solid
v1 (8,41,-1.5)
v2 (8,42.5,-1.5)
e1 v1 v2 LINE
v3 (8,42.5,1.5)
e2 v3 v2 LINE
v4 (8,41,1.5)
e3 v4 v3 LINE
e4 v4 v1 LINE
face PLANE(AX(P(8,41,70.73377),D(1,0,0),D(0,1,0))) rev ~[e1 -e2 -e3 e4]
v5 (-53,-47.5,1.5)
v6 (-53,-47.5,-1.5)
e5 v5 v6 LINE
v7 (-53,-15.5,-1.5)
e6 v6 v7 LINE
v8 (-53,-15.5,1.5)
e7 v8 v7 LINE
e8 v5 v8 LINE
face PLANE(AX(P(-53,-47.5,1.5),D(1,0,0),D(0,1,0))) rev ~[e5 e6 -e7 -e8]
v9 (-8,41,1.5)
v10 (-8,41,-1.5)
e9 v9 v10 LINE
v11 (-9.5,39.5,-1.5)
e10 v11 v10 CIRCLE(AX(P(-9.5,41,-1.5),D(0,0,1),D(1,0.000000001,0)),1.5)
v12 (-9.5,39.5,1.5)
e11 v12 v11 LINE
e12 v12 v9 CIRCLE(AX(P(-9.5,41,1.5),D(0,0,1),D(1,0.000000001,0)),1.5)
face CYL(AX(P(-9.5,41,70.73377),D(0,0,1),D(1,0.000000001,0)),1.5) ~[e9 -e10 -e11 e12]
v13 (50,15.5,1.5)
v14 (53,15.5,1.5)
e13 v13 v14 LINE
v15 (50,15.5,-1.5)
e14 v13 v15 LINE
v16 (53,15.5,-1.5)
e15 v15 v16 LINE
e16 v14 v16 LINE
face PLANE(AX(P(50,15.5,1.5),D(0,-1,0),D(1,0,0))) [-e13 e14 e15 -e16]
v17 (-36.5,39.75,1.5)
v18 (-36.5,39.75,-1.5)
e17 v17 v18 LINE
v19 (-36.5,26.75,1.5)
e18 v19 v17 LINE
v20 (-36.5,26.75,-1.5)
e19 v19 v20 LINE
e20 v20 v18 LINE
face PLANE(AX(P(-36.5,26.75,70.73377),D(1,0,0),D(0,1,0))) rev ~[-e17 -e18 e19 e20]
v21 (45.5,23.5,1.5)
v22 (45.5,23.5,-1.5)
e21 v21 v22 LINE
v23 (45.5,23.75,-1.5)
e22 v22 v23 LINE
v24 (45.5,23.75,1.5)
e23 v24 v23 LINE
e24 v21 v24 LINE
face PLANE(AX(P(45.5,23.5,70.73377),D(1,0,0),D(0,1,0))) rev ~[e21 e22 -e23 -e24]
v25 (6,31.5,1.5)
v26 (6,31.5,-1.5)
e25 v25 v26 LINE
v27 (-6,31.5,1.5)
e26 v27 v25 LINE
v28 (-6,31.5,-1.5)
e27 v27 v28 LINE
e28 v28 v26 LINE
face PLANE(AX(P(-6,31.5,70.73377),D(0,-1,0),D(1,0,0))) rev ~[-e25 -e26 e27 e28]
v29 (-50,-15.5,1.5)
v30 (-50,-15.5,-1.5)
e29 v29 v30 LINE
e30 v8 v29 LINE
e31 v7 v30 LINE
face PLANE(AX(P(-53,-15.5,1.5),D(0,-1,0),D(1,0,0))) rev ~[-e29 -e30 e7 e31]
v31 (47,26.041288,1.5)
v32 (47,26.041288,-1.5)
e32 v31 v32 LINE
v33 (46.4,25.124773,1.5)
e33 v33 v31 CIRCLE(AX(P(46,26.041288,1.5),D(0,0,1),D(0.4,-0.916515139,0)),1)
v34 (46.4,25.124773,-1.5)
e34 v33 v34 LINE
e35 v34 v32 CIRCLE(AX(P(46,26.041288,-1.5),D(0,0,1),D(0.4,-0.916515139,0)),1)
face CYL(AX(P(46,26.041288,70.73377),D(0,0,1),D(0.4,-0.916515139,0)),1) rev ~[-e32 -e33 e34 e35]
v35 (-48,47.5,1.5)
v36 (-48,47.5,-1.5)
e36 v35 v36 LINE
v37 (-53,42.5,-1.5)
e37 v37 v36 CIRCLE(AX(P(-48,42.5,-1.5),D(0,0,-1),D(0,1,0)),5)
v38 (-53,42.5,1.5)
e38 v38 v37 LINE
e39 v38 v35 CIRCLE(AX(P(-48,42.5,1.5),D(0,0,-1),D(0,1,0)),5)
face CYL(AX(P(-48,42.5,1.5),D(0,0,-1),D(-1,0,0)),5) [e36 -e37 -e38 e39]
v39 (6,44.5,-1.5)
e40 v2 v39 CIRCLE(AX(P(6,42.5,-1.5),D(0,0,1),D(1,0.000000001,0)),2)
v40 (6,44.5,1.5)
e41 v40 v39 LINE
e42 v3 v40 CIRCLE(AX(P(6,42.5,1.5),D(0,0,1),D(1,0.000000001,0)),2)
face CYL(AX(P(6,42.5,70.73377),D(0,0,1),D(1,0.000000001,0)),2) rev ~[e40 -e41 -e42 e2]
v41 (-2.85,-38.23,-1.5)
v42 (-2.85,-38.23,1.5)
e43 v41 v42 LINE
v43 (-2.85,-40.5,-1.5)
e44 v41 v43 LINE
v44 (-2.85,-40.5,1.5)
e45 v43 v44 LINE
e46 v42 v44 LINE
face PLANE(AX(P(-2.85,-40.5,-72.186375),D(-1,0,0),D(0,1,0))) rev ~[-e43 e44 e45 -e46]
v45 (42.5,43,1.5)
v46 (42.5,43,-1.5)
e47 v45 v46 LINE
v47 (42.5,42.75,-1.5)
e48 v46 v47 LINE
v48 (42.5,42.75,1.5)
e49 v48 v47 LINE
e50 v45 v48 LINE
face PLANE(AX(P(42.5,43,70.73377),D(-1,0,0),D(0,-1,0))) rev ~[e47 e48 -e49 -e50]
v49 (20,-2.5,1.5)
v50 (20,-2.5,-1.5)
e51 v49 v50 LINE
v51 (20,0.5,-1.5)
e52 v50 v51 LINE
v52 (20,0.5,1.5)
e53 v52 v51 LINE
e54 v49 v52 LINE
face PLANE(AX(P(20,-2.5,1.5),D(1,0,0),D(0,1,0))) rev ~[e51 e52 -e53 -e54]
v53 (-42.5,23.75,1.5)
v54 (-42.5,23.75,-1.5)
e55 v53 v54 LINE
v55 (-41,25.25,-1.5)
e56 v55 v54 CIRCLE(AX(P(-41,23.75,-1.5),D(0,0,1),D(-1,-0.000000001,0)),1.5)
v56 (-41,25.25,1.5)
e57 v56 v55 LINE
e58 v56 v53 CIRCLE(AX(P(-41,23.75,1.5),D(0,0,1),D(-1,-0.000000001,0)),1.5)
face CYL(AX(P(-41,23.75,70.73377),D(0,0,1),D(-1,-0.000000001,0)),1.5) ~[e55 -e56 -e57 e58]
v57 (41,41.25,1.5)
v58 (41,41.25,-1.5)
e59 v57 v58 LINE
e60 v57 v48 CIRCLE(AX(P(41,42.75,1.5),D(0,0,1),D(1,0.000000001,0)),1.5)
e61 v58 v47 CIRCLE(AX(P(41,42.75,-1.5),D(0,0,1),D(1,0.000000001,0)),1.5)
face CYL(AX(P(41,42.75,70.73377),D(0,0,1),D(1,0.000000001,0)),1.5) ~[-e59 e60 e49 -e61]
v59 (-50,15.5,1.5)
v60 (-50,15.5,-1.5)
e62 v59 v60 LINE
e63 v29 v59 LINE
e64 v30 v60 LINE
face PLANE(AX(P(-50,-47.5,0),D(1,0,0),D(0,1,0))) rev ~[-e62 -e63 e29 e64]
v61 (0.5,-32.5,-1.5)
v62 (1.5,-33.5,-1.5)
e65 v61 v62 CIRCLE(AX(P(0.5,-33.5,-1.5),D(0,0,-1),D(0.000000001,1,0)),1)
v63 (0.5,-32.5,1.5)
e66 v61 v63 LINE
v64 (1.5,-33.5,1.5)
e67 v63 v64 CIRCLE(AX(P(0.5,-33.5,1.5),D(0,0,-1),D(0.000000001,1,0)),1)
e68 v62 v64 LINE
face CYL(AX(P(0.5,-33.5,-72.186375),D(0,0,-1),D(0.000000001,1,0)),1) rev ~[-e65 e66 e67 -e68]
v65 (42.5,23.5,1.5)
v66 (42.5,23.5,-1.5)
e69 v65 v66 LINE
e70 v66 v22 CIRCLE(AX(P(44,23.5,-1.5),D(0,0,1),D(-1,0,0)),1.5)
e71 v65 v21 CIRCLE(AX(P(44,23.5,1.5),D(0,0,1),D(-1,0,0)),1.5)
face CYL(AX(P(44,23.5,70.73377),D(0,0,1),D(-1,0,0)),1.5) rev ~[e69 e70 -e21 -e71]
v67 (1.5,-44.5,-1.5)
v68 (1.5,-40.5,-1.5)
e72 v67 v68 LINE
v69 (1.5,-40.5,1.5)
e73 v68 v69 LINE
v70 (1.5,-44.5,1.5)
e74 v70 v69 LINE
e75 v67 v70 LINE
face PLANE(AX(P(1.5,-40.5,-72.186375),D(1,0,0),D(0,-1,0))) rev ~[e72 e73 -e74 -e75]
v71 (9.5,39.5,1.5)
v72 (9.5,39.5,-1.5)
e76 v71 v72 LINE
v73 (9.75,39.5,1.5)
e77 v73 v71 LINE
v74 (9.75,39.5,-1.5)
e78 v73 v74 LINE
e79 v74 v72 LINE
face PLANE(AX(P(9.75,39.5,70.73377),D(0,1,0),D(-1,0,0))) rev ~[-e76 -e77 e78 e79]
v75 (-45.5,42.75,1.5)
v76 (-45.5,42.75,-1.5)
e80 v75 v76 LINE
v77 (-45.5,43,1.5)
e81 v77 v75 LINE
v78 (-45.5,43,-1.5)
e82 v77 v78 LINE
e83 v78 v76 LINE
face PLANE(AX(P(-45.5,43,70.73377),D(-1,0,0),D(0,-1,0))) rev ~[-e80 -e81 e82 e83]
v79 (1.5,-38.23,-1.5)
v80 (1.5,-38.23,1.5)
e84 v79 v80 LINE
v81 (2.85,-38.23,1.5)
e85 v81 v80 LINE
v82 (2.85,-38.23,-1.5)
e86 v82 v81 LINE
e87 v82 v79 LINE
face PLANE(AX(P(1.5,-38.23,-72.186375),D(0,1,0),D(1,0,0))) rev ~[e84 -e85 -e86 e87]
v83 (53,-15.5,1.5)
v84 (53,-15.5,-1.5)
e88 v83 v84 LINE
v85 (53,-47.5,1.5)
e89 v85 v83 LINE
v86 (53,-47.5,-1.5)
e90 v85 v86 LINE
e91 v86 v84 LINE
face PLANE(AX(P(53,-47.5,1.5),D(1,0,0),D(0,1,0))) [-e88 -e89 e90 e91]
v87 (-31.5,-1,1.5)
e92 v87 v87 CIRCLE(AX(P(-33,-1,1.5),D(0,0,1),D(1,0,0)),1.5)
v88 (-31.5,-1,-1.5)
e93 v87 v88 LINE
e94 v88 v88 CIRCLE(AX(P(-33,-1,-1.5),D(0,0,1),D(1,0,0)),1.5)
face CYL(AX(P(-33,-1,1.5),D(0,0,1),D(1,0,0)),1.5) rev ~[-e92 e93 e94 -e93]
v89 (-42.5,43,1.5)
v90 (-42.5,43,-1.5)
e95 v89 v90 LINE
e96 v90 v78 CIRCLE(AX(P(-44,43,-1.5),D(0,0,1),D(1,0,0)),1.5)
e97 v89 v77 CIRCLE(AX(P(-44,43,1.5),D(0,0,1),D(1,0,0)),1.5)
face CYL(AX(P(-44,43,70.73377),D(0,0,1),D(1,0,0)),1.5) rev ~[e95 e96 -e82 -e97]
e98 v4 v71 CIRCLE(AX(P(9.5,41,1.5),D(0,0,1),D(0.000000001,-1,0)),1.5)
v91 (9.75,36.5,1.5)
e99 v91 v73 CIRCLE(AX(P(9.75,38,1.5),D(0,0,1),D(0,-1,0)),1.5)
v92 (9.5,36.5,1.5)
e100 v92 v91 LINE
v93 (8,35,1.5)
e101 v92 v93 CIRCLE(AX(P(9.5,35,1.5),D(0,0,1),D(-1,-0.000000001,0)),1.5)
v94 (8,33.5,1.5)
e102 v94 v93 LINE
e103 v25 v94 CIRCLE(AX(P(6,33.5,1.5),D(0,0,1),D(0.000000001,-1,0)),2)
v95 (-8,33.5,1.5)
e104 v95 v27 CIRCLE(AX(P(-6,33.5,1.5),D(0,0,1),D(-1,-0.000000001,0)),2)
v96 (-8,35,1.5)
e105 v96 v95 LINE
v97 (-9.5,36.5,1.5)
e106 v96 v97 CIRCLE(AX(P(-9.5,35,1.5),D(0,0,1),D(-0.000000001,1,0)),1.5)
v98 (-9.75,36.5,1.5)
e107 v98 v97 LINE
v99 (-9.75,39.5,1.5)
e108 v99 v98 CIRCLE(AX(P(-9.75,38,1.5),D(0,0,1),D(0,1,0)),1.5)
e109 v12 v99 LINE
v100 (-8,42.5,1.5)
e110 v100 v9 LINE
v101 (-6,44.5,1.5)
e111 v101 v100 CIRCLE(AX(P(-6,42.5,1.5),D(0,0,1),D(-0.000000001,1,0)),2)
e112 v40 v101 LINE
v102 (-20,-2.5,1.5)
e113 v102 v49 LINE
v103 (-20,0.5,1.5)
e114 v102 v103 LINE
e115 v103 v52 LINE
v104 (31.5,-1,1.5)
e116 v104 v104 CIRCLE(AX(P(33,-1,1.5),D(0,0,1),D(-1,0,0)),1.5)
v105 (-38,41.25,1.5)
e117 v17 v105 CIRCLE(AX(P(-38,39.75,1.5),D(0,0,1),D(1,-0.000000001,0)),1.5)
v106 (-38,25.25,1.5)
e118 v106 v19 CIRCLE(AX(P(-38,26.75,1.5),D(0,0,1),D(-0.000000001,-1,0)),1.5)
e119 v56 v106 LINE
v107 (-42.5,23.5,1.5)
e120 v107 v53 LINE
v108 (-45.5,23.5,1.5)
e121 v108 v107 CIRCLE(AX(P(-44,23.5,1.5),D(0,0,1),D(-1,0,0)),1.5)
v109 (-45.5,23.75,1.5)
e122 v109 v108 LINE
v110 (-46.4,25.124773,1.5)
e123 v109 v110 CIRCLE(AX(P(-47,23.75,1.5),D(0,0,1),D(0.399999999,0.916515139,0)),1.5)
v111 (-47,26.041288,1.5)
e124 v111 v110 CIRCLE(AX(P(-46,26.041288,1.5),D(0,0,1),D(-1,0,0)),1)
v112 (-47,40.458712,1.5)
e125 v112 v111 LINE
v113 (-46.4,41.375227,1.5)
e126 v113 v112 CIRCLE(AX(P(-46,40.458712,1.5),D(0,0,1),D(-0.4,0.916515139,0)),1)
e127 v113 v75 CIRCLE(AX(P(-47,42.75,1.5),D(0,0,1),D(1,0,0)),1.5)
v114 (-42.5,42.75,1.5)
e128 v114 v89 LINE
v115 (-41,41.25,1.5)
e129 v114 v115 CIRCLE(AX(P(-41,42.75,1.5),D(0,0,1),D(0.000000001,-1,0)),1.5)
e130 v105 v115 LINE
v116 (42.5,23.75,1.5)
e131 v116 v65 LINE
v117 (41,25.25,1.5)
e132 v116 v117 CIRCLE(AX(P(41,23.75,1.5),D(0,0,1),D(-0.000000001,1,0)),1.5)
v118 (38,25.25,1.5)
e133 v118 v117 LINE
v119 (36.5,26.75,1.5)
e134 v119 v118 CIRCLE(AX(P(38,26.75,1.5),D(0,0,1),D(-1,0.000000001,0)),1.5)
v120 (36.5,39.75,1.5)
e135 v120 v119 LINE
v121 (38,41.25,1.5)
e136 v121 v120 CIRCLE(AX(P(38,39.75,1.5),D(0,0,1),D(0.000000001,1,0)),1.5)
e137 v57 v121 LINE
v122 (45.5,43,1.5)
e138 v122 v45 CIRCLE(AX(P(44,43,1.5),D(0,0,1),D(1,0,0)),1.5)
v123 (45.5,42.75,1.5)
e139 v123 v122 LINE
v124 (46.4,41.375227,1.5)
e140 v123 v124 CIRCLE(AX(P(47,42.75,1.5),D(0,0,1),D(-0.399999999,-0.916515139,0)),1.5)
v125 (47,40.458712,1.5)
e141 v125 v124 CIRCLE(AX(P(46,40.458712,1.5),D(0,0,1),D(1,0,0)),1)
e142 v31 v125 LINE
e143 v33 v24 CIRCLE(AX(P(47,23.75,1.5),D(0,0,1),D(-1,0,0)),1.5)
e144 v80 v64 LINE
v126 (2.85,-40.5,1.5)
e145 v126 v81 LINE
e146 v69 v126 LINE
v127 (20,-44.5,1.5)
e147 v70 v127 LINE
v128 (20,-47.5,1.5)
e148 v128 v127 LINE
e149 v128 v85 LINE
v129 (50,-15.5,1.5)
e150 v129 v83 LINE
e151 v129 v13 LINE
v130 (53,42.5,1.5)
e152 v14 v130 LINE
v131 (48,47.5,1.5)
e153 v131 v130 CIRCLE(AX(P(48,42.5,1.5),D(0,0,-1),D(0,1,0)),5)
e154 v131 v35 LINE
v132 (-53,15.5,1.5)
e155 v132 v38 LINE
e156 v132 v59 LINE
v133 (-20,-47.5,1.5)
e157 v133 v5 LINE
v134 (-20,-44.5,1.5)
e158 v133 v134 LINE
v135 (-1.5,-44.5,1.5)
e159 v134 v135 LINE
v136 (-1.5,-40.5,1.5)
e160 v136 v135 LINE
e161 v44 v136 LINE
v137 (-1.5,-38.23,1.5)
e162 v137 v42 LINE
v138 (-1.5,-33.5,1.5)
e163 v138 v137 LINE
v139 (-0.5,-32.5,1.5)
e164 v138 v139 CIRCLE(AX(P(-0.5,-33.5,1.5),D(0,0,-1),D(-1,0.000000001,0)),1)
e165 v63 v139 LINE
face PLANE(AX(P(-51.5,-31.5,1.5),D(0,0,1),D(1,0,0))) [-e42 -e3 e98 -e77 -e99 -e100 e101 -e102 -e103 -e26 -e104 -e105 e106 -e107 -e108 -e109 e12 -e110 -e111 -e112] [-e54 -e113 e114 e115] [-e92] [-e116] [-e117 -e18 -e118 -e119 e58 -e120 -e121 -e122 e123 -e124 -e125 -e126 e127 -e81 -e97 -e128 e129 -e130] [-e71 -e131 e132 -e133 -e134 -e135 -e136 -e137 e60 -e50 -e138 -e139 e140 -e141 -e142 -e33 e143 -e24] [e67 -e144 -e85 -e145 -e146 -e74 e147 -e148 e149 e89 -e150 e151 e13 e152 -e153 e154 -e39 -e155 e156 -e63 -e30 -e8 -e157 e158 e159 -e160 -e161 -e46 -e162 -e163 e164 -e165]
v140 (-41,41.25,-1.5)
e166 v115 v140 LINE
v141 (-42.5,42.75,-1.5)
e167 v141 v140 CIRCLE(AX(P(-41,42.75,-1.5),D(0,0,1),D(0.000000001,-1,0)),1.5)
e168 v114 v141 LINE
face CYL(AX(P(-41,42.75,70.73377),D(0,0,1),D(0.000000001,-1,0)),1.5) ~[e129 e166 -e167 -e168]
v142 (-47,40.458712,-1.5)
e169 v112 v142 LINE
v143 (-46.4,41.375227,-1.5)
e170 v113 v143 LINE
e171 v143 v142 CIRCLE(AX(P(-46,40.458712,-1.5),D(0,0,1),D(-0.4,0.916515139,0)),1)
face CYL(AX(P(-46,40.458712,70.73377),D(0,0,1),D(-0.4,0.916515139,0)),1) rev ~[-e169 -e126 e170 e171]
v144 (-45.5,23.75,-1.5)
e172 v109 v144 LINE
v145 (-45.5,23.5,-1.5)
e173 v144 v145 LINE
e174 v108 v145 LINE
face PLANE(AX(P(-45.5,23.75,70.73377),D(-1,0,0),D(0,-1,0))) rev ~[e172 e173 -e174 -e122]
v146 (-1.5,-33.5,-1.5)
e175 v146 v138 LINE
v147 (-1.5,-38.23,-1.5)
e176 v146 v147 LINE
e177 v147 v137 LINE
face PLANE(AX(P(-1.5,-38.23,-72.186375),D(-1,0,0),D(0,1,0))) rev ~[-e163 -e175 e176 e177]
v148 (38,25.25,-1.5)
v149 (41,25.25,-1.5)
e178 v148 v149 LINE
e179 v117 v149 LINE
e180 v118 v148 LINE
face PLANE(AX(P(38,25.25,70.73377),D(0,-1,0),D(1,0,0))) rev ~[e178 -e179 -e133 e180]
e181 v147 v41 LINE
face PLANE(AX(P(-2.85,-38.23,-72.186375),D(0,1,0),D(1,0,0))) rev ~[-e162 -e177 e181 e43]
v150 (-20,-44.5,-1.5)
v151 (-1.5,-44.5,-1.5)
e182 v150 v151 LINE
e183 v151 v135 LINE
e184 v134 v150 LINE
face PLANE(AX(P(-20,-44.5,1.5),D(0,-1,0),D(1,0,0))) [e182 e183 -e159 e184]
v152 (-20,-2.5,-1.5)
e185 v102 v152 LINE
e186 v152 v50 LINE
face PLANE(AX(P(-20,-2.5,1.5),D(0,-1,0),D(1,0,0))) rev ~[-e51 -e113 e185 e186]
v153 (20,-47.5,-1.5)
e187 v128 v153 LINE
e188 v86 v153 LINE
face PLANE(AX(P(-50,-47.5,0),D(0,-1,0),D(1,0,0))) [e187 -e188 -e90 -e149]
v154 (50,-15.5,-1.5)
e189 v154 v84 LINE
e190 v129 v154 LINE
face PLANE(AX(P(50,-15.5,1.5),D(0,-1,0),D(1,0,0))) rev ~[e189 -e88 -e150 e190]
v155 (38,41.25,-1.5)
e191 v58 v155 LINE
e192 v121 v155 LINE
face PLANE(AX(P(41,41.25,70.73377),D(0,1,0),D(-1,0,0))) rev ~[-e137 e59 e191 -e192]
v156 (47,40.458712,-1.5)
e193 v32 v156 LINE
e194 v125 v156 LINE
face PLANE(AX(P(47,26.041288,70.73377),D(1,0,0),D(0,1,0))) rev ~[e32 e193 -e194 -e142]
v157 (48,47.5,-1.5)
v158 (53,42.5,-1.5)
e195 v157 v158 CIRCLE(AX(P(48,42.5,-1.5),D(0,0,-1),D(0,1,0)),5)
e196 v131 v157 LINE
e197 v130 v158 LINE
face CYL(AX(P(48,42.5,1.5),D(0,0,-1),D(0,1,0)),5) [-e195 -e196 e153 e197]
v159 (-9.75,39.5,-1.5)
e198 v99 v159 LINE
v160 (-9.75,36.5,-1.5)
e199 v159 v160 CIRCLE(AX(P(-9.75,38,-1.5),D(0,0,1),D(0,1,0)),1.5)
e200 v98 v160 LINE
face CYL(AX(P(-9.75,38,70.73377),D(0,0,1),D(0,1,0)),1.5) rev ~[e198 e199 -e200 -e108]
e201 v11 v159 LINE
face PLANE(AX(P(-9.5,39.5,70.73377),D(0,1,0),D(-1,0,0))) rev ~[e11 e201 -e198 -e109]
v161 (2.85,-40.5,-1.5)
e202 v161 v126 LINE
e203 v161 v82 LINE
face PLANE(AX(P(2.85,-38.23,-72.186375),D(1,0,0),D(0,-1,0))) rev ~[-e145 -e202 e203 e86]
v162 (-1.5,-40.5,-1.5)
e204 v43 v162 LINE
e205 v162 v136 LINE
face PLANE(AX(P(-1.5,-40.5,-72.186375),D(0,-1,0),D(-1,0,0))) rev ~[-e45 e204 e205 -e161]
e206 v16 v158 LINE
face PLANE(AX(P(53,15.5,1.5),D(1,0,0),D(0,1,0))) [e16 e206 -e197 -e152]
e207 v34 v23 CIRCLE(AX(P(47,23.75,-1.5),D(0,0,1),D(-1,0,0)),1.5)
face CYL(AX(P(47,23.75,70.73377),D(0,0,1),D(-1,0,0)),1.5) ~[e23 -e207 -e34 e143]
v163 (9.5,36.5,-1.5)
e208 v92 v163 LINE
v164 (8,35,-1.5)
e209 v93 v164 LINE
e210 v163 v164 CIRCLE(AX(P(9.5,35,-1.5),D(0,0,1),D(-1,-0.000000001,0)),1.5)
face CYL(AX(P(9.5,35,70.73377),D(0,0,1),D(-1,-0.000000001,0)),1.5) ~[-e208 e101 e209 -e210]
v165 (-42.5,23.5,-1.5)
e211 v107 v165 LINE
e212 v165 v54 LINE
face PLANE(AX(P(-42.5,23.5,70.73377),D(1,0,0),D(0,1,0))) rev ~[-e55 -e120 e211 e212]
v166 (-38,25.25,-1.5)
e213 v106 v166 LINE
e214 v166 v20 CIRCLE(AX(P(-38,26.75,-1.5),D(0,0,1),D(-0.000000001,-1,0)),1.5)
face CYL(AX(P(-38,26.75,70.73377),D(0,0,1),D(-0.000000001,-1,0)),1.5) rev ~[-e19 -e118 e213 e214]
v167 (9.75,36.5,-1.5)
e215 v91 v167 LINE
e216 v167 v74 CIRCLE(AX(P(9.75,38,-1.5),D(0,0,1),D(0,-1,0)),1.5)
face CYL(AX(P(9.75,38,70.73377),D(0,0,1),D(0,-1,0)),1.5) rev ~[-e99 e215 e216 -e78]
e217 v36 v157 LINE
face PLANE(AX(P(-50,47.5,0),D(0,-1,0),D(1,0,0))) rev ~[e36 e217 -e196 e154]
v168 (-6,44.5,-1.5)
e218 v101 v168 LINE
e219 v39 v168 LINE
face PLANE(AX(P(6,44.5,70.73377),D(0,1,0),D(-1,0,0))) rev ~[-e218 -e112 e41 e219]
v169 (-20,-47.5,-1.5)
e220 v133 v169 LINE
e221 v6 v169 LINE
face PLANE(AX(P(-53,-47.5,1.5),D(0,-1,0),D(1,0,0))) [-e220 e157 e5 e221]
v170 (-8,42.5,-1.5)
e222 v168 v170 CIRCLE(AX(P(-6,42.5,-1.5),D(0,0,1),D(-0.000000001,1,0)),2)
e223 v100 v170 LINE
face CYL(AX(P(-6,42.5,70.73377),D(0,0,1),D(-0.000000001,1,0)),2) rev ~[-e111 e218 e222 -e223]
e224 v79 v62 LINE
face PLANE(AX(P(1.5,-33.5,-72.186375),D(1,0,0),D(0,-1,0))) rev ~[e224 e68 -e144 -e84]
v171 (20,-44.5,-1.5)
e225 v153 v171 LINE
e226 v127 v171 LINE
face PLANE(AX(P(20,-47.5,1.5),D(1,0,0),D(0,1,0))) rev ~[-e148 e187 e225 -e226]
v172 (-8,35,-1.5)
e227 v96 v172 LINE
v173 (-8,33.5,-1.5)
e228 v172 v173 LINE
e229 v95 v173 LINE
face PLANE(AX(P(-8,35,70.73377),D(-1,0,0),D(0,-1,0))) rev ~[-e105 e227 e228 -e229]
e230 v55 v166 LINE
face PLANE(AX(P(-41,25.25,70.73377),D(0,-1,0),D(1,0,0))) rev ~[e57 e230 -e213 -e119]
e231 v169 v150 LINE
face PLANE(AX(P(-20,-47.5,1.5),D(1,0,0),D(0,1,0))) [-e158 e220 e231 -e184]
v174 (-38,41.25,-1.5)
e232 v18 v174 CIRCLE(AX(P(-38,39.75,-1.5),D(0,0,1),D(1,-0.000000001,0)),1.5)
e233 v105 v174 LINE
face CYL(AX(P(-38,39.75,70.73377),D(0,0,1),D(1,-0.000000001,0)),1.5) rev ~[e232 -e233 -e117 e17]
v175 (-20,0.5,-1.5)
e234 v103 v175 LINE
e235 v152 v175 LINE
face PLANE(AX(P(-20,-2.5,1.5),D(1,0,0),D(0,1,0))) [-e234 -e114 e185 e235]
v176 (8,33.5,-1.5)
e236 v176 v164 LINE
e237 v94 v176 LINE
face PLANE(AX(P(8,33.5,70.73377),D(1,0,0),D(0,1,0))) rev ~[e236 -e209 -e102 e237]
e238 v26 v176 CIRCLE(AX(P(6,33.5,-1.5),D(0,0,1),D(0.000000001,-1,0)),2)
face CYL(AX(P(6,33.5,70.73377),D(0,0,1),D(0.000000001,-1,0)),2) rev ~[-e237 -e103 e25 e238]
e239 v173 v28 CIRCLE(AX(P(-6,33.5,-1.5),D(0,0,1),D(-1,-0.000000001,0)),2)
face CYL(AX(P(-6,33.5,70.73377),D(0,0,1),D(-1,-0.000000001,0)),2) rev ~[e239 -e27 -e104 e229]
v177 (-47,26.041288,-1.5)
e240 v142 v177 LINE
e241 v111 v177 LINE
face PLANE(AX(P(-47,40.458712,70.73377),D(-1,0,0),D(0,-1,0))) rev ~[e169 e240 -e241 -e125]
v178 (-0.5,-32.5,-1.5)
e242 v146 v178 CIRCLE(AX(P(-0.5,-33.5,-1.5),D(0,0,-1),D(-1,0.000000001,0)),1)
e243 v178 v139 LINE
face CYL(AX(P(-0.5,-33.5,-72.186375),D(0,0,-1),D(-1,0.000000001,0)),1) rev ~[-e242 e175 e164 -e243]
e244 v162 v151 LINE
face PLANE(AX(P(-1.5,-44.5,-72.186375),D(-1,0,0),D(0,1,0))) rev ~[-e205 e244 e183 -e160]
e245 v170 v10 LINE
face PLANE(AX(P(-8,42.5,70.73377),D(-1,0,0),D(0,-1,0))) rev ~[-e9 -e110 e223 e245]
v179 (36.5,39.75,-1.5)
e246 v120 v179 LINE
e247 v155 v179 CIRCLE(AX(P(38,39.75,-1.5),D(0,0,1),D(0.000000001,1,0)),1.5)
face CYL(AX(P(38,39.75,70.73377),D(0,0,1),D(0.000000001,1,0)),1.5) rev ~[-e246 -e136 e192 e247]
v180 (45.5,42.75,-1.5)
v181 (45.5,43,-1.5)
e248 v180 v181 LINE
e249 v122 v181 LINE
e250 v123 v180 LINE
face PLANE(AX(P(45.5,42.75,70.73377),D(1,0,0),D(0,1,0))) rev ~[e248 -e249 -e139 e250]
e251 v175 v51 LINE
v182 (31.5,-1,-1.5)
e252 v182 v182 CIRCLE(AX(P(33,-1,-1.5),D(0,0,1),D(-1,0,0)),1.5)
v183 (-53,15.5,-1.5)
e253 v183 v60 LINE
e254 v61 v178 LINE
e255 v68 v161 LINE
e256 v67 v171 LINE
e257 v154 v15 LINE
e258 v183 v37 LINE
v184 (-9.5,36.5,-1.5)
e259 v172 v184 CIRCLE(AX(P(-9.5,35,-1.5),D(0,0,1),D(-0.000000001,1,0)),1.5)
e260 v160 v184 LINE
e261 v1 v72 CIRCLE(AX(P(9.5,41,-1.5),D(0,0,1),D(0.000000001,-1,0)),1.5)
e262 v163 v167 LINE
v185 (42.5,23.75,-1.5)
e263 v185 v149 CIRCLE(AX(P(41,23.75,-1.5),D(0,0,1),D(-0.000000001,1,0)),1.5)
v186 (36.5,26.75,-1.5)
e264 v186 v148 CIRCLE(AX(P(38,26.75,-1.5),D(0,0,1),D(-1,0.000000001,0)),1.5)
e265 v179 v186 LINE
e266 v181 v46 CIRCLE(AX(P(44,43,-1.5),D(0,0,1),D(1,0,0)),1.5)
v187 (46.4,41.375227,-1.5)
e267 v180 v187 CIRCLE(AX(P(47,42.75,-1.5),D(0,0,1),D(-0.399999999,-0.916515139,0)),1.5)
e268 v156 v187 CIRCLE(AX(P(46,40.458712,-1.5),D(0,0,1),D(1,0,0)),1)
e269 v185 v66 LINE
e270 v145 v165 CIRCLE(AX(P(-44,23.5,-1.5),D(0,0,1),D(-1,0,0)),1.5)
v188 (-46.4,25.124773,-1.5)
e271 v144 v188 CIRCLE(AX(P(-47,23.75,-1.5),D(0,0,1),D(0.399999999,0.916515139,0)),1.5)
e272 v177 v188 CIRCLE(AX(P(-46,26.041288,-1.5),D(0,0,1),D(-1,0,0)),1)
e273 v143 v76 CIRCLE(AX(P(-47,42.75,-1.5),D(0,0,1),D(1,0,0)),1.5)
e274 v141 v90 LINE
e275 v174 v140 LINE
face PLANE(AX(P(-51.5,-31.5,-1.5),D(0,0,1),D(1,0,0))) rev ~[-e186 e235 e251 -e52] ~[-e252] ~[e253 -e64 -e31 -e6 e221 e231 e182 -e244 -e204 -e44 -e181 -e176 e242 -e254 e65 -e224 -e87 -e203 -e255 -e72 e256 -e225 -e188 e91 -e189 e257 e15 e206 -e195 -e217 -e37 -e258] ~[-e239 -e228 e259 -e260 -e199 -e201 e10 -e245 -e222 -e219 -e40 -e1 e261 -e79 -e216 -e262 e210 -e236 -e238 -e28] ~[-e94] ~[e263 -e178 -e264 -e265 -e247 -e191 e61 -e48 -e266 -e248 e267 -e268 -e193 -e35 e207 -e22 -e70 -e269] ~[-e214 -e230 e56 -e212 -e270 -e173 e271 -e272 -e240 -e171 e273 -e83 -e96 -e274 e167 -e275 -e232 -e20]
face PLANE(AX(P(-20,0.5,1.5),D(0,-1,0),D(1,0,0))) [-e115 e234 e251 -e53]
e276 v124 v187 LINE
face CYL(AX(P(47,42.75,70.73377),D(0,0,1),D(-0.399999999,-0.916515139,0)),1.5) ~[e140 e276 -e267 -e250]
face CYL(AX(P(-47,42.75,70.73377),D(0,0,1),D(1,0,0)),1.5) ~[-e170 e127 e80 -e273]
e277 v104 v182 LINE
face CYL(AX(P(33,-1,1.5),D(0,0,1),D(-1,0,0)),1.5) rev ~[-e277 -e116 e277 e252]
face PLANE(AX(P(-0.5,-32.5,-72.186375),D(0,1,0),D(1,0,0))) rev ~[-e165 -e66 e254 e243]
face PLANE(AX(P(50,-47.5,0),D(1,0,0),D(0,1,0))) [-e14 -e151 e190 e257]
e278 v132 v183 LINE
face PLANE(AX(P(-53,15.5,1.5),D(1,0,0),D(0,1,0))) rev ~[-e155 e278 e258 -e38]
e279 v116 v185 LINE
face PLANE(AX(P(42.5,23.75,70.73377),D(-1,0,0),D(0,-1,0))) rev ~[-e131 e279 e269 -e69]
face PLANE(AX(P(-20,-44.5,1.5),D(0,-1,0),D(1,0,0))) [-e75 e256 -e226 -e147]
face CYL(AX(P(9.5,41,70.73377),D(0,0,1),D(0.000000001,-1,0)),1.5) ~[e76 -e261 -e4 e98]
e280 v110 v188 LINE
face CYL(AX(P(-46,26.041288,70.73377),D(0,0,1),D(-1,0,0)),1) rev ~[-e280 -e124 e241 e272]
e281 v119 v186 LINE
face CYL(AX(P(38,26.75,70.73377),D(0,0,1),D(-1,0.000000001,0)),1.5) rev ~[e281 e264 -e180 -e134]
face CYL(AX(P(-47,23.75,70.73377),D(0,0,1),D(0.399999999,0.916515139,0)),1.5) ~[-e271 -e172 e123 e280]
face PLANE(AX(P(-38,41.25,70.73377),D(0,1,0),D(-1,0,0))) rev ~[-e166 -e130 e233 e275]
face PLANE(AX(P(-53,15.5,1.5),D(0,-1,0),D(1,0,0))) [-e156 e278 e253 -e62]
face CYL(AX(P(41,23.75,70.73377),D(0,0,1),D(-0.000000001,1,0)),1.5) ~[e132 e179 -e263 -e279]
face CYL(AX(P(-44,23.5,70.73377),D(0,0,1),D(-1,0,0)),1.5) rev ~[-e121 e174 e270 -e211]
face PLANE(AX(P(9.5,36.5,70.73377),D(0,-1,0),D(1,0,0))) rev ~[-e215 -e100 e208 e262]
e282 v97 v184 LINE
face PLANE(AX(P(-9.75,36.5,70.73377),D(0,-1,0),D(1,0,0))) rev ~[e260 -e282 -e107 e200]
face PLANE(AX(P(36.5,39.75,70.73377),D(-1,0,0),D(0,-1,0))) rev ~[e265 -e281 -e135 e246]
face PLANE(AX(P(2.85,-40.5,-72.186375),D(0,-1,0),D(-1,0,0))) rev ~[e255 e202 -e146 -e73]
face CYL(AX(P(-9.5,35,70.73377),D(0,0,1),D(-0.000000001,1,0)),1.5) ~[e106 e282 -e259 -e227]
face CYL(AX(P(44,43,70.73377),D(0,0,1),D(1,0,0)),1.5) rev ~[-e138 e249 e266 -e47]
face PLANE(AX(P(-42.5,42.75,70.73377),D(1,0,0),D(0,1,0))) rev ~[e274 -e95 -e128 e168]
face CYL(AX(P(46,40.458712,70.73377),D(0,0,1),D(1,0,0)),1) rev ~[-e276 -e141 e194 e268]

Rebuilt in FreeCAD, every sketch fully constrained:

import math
import FreeCAD as App
import Part
import Sketcher
Q = App.Units.Quantity


def edges_at(feature, points):
    """Names of the edges that pass closest to the given points."""
    edges = feature.Shape.Edges
    near = lambda p: min(range(len(edges)), key=lambda i: edges[i].distToShape(Part.Vertex(*p))[0])
    return sorted({f"Edge{near(p) + 1}" for p in points})


def add_polygon(sketch, points):
    """Adds a closed chain of lines whose ends are joined by coincident constraints."""
    first, n = sketch.GeometryCount, len(points)
    for a, b in zip(points, points[1:] + points[:1]):
        sketch.addGeometry(Part.LineSegment(App.Vector(*a, 0), App.Vector(*b, 0)), False)
    for i in range(n):
        sketch.addConstraint(Sketcher.Constraint("Coincident", first + i, 2, first + (i + 1) % n, 1))

doc = App.newDocument("Part")
body = doc.addObject("PartDesign::Body", "Body")

sketch1 = doc.addObject("Sketcher::SketchObject", "Sketch")
body.addObject(sketch1)
sketch1.AttachmentSupport = (doc.XY_Plane, [""])
sketch1.MapMode = "FlatFace"
add_polygon(sketch1, [(-50, 48), (-50, -48), (50, -48), (50, 48)])
sketch1.addConstraint([
    Sketcher.Constraint("Vertical", 0),
    Sketcher.Constraint("Horizontal", 1),
    Sketcher.Constraint("Vertical", 2),
    Sketcher.Constraint("Horizontal", 3),
    Sketcher.Constraint("Symmetric", 0, 2, 2, 2, -1, 1),
    Sketcher.Constraint("DistanceX", 1, 1, 1, 2, Q("100 mm")),
    Sketcher.Constraint("DistanceY", 0, 2, 0, 1, Q("95 mm")),
])
pad1 = doc.addObject("PartDesign::Pad", "Pad")
body.addObject(pad1)
pad1.Profile = sketch1
pad1.Length = 3
pad1.Midplane = True

sketch2 = doc.addObject("Sketcher::SketchObject", "Sketch001")
body.addObject(sketch2)
sketch2.AttachmentSupport = (doc.XY_Plane, [""])
sketch2.MapMode = "FlatFace"
sketch2.AttachmentOffset = App.Placement(App.Vector(0, 0, 1.5), App.Rotation())
sketch2.addGeometry(Part.Circle(App.Vector(-33, -1, 0), App.Vector(0, 0, 1), 1.5), False)
sketch2.addGeometry(Part.Circle(App.Vector(33, -1, 0), App.Vector(0, 0, 1), 1.5), False)
add_polygon(sketch2, [(-20, -44.5), (-20, -47.5), (20, -47.5), (20, -44.5)])
add_polygon(sketch2, [(-20, 0.5), (-20, -2.5), (20, -2.5), (20, 0.5)])
sketch2.addConstraint([
    Sketcher.Constraint("Vertical", 2),
    Sketcher.Constraint("Horizontal", 3),
    Sketcher.Constraint("Vertical", 4),
    Sketcher.Constraint("Horizontal", 5),
    Sketcher.Constraint("Vertical", 6),
    Sketcher.Constraint("Horizontal", 7),
    Sketcher.Constraint("Vertical", 8),
    Sketcher.Constraint("Horizontal", 9),
    Sketcher.Constraint("Equal", 0, 1),
    Sketcher.Constraint("Symmetric", 0, 3, 1, 3, -2),
    Sketcher.Constraint("Vertical", 5, 2, 6, 2),
    Sketcher.Constraint("Vertical", 4, 2, 7, 2),
    Sketcher.Constraint("Equal", 4, 6),
    Sketcher.Constraint("Diameter", 0, Q("3 mm")),
    Sketcher.Constraint("DistanceX", 3, 1, 3, 2, Q("40 mm")),
    Sketcher.Constraint("DistanceY", 2, 2, 2, 1, Q("3 mm")),
    Sketcher.Constraint("DistanceX", 0, 3, -1, 1, Q("33 mm")),
    Sketcher.Constraint("DistanceY", 0, 3, -1, 1, Q("1 mm")),
    Sketcher.Constraint("DistanceX", 2, 2, -1, 1, Q("20 mm")),
    Sketcher.Constraint("DistanceY", 5, 2, 6, 2, Q("42 mm")),
    Sketcher.Constraint("DistanceY", 2, 2, -1, 1, Q("47.5 mm")),
])
pocket1 = doc.addObject("PartDesign::Pocket", "Pocket")
body.addObject(pocket1)
pocket1.Profile = sketch2
pocket1.Type = "ThroughAll"

sketch3 = doc.addObject("Sketcher::SketchObject", "Sketch002")
body.addObject(sketch3)
sketch3.AttachmentSupport = (doc.XY_Plane, [""])
sketch3.MapMode = "FlatFace"
sketch3.AttachmentOffset = App.Placement(App.Vector(0, 0, 1.5), App.Rotation())
add_polygon(sketch3, [(-53, -15.5), (-53, -47.5), (-50, -47.5), (-50, -15.5)])
add_polygon(sketch3, [(50, -15.5), (50, -47.5), (53, -47.5), (53, -15.5)])
add_polygon(sketch3, [(-53, 47.5), (-53, 15.5), (-50, 15.5), (-50, 47.5)])
add_polygon(sketch3, [(50, 47.5), (50, 15.5), (53, 15.5), (53, 47.5)])
sketch3.addConstraint([
    Sketcher.Constraint("Vertical", 0),
    Sketcher.Constraint("Horizontal", 1),
    Sketcher.Constraint("Vertical", 2),
    Sketcher.Constraint("Horizontal", 3),
    Sketcher.Constraint("Vertical", 4),
    Sketcher.Constraint("Horizontal", 5),
    Sketcher.Constraint("Vertical", 6),
    Sketcher.Constraint("Horizontal", 7),
    Sketcher.Constraint("Vertical", 8),
    Sketcher.Constraint("Horizontal", 9),
    Sketcher.Constraint("Vertical", 10),
    Sketcher.Constraint("Horizontal", 11),
    Sketcher.Constraint("Vertical", 12),
    Sketcher.Constraint("Horizontal", 13),
    Sketcher.Constraint("Vertical", 14),
    Sketcher.Constraint("Horizontal", 15),
    Sketcher.Constraint("Symmetric", 6, 2, 8, 2, -1, 1),
    Sketcher.Constraint("Symmetric", 4, 2, 10, 2, -1, 1),
    Sketcher.Constraint("Symmetric", 2, 2, 12, 2, -1, 1),
    Sketcher.Constraint("Symmetric", 0, 2, 14, 2, -1, 1),
    Sketcher.Constraint("Symmetric", 1, 2, 4, 2, -2),
    Sketcher.Constraint("Symmetric", 3, 2, 6, 2, -2),
    Sketcher.Constraint("DistanceX", 1, 1, 1, 2, Q("3 mm")),
    Sketcher.Constraint("DistanceY", 0, 2, 0, 1, Q("32 mm")),
    Sketcher.Constraint("DistanceX", 0, 2, -1, 1, Q("53 mm")),
    Sketcher.Constraint("DistanceY", 3, 2, 8, 2, Q("31 mm")),
])
pad2 = doc.addObject("PartDesign::Pad", "Pad001")
body.addObject(pad2)
pad2.Profile = sketch3
pad2.Length = 3
pad2.Reversed = True

sketch4 = doc.addObject("Sketcher::SketchObject", "Sketch003")
body.addObject(sketch4)
sketch4.AttachmentSupport = (doc.XY_Plane, [""])
sketch4.MapMode = "FlatFace"
sketch4.AttachmentOffset = App.Placement(App.Vector(0, 0, -1.5), App.Rotation())
sketch4.addGeometry([
    Part.LineSegment(App.Vector(36.5, 26.75, 0), App.Vector(36.5, 39.75, 0)),
    Part.ArcOfCircle(Part.Circle(App.Vector(38, 39.75, 0), App.Vector(0, 0, 1), 1.5), math.radians(90), math.radians(180)),
    Part.LineSegment(App.Vector(38, 41.25, 0), App.Vector(41, 41.25, 0)),
    Part.ArcOfCircle(Part.Circle(App.Vector(41, 42.75, 0), App.Vector(0, 0, 1), 1.5), math.radians(-90), math.radians(0)),
    Part.LineSegment(App.Vector(42.5, 42.75, 0), App.Vector(42.5, 43, 0)),
    Part.ArcOfCircle(Part.Circle(App.Vector(44, 43, 0), App.Vector(0, 0, 1), 1.5), math.radians(0), math.radians(180)),
    Part.LineSegment(App.Vector(45.5, 43, 0), App.Vector(45.5, 42.75, 0)),
    Part.ArcOfCircle(Part.Circle(App.Vector(47, 42.75, 0), App.Vector(0, 0, 1), 1.5), math.radians(180), math.radians(246)),
    Part.ArcOfCircle(Part.Circle(App.Vector(46, 40.46, 0), App.Vector(0, 0, 1), 1), math.radians(0), math.radians(66)),
    Part.LineSegment(App.Vector(47, 40.46, 0), App.Vector(47, 26.04, 0)),
    Part.ArcOfCircle(Part.Circle(App.Vector(46, 26.04, 0), App.Vector(0, 0, 1), 1), math.radians(-66), math.radians(0)),
    Part.ArcOfCircle(Part.Circle(App.Vector(47, 23.75, 0), App.Vector(0, 0, 1), 1.5), math.radians(114), math.radians(180)),
    Part.LineSegment(App.Vector(45.5, 23.75, 0), App.Vector(45.5, 23.5, 0)),
    Part.ArcOfCircle(Part.Circle(App.Vector(44, 23.5, 0), App.Vector(0, 0, 1), 1.5), math.radians(180), math.radians(360)),
    Part.LineSegment(App.Vector(42.5, 23.5, 0), App.Vector(42.5, 23.75, 0)),
    Part.ArcOfCircle(Part.Circle(App.Vector(41, 23.75, 0), App.Vector(0, 0, 1), 1.5), math.radians(0), math.radians(90)),
    Part.LineSegment(App.Vector(41, 25.25, 0), App.Vector(38, 25.25, 0)),
    Part.ArcOfCircle(Part.Circle(App.Vector(38, 26.75, 0), App.Vector(0, 0, 1), 1.5), math.radians(180), math.radians(270)),
    Part.LineSegment(App.Vector(-6, 44.5, 0), App.Vector(6, 44.5, 0)),
    Part.ArcOfCircle(Part.Circle(App.Vector(6, 42.5, 0), App.Vector(0, 0, 1), 2), math.radians(0), math.radians(90)),
    Part.LineSegment(App.Vector(8, 42.5, 0), App.Vector(8, 41, 0)),
    Part.ArcOfCircle(Part.Circle(App.Vector(9.5, 41, 0), App.Vector(0, 0, 1), 1.5), math.radians(180), math.radians(270)),
    Part.LineSegment(App.Vector(9.5, 39.5, 0), App.Vector(9.75, 39.5, 0)),
    Part.ArcOfCircle(Part.Circle(App.Vector(9.75, 38, 0), App.Vector(0, 0, 1), 1.5), math.radians(-90), math.radians(90)),
    Part.LineSegment(App.Vector(9.75, 36.5, 0), App.Vector(9.5, 36.5, 0)),
    Part.ArcOfCircle(Part.Circle(App.Vector(9.5, 35, 0), App.Vector(0, 0, 1), 1.5), math.radians(90), math.radians(180)),
    Part.LineSegment(App.Vector(8, 35, 0), App.Vector(8, 33.5, 0)),
    Part.ArcOfCircle(Part.Circle(App.Vector(6, 33.5, 0), App.Vector(0, 0, 1), 2), math.radians(-90), math.radians(0)),
    Part.LineSegment(App.Vector(6, 31.5, 0), App.Vector(-6, 31.5, 0)),
    Part.ArcOfCircle(Part.Circle(App.Vector(-6, 33.5, 0), App.Vector(0, 0, 1), 2), math.radians(-180), math.radians(-90)),
    Part.LineSegment(App.Vector(-8, 33.5, 0), App.Vector(-8, 35, 0)),
    Part.ArcOfCircle(Part.Circle(App.Vector(-9.5, 35, 0), App.Vector(0, 0, 1), 1.5), math.radians(0), math.radians(90)),
    Part.LineSegment(App.Vector(-9.5, 36.5, 0), App.Vector(-9.75, 36.5, 0)),
    Part.ArcOfCircle(Part.Circle(App.Vector(-9.75, 38, 0), App.Vector(0, 0, 1), 1.5), math.radians(90), math.radians(270)),
    Part.LineSegment(App.Vector(-9.75, 39.5, 0), App.Vector(-9.5, 39.5, 0)),
    Part.ArcOfCircle(Part.Circle(App.Vector(-9.5, 41, 0), App.Vector(0, 0, 1), 1.5), math.radians(-90), math.radians(0)),
    Part.LineSegment(App.Vector(-8, 41, 0), App.Vector(-8, 42.5, 0)),
    Part.ArcOfCircle(Part.Circle(App.Vector(-6, 42.5, 0), App.Vector(0, 0, 1), 2), math.radians(90), math.radians(180)),
    Part.LineSegment(App.Vector(-47, 26.04, 0), App.Vector(-47, 40.46, 0)),
    Part.ArcOfCircle(Part.Circle(App.Vector(-46, 40.46, 0), App.Vector(0, 0, 1), 1), math.radians(114), math.radians(180)),
    Part.ArcOfCircle(Part.Circle(App.Vector(-47, 42.75, 0), App.Vector(0, 0, 1), 1.5), math.radians(-66), math.radians(0)),
    Part.LineSegment(App.Vector(-45.5, 42.75, 0), App.Vector(-45.5, 43, 0)),
    Part.ArcOfCircle(Part.Circle(App.Vector(-44, 43, 0), App.Vector(0, 0, 1), 1.5), math.radians(0), math.radians(180)),
    Part.LineSegment(App.Vector(-42.5, 43, 0), App.Vector(-42.5, 42.75, 0)),
    Part.ArcOfCircle(Part.Circle(App.Vector(-41, 42.75, 0), App.Vector(0, 0, 1), 1.5), math.radians(180), math.radians(270)),
    Part.LineSegment(App.Vector(-41, 41.25, 0), App.Vector(-38, 41.25, 0)),
    Part.ArcOfCircle(Part.Circle(App.Vector(-38, 39.75, 0), App.Vector(0, 0, 1), 1.5), math.radians(0), math.radians(90)),
    Part.LineSegment(App.Vector(-36.5, 39.75, 0), App.Vector(-36.5, 26.75, 0)),
    Part.ArcOfCircle(Part.Circle(App.Vector(-38, 26.75, 0), App.Vector(0, 0, 1), 1.5), math.radians(-90), math.radians(0)),
    Part.LineSegment(App.Vector(-38, 25.25, 0), App.Vector(-41, 25.25, 0)),
    Part.ArcOfCircle(Part.Circle(App.Vector(-41, 23.75, 0), App.Vector(0, 0, 1), 1.5), math.radians(90), math.radians(180)),
    Part.LineSegment(App.Vector(-42.5, 23.75, 0), App.Vector(-42.5, 23.5, 0)),
    Part.ArcOfCircle(Part.Circle(App.Vector(-44, 23.5, 0), App.Vector(0, 0, 1), 1.5), math.radians(180), math.radians(360)),
    Part.LineSegment(App.Vector(-45.5, 23.5, 0), App.Vector(-45.5, 23.75, 0)),
    Part.ArcOfCircle(Part.Circle(App.Vector(-47, 23.75, 0), App.Vector(0, 0, 1), 1.5), math.radians(0), math.radians(66)),
    Part.ArcOfCircle(Part.Circle(App.Vector(-46, 26.04, 0), App.Vector(0, 0, 1), 1), math.radians(180), math.radians(246)),
], False)
sketch4.addConstraint([
    Sketcher.Constraint("Tangent", 0, 2, 1, 2),
    Sketcher.Constraint("Tangent", 1, 1, 2, 1),
    Sketcher.Constraint("Tangent", 2, 2, 3, 1),
    Sketcher.Constraint("Tangent", 3, 2, 4, 1),
    Sketcher.Constraint("Tangent", 4, 2, 5, 2),
    Sketcher.Constraint("Tangent", 5, 1, 6, 1),
    Sketcher.Constraint("Tangent", 6, 2, 7, 1),
    Sketcher.Constraint("Tangent", 7, 2, 8, 2),
    Sketcher.Constraint("Tangent", 8, 1, 9, 1),
    Sketcher.Constraint("Tangent", 9, 2, 10, 2),
    Sketcher.Constraint("Tangent", 10, 1, 11, 1),
    Sketcher.Constraint("Tangent", 11, 2, 12, 1),
    Sketcher.Constraint("Tangent", 12, 2, 13, 2),
    Sketcher.Constraint("Tangent", 13, 1, 14, 1),
    Sketcher.Constraint("Tangent", 14, 2, 15, 1),
    Sketcher.Constraint("Tangent", 15, 2, 16, 1),
    Sketcher.Constraint("Tangent", 16, 2, 17, 2),
    Sketcher.Constraint("Tangent", 17, 1, 0, 1),
    Sketcher.Constraint("Tangent", 18, 2, 19, 2),
    Sketcher.Constraint("Tangent", 19, 1, 20, 1),
    Sketcher.Constraint("Tangent", 20, 2, 21, 1),
    Sketcher.Constraint("Tangent", 21, 2, 22, 1),
    Sketcher.Constraint("Tangent", 22, 2, 23, 2),
    Sketcher.Constraint("Tangent", 23, 1, 24, 1),
    Sketcher.Constraint("Tangent", 24, 2, 25, 1),
    Sketcher.Constraint("Tangent", 25, 2, 26, 1),
    Sketcher.Constraint("Tangent", 26, 2, 27, 2),
    Sketcher.Constraint("Tangent", 27, 1, 28, 1),
    Sketcher.Constraint("Tangent", 28, 2, 29, 2),
    Sketcher.Constraint("Tangent", 29, 1, 30, 1),
    Sketcher.Constraint("Tangent", 30, 2, 31, 1),
    Sketcher.Constraint("Tangent", 31, 2, 32, 1),
    Sketcher.Constraint("Tangent", 32, 2, 33, 2),
    Sketcher.Constraint("Tangent", 33, 1, 34, 1),
    Sketcher.Constraint("Tangent", 34, 2, 35, 1),
    Sketcher.Constraint("Tangent", 35, 2, 36, 1),
    Sketcher.Constraint("Tangent", 36, 2, 37, 2),
    Sketcher.Constraint("Tangent", 37, 1, 18, 1),
    Sketcher.Constraint("Tangent", 38, 2, 39, 2),
    Sketcher.Constraint("Tangent", 39, 1, 40, 1),
    Sketcher.Constraint("Tangent", 40, 2, 41, 1),
    Sketcher.Constraint("Tangent", 41, 2, 42, 2),
    Sketcher.Constraint("Tangent", 42, 1, 43, 1),
    Sketcher.Constraint("Tangent", 43, 2, 44, 1),
    Sketcher.Constraint("Tangent", 44, 2, 45, 1),
    Sketcher.Constraint("Tangent", 45, 2, 46, 2),
    Sketcher.Constraint("Tangent", 46, 1, 47, 1),
    Sketcher.Constraint("Tangent", 47, 2, 48, 2),
    Sketcher.Constraint("Tangent", 48, 1, 49, 1),
    Sketcher.Constraint("Tangent", 49, 2, 50, 1),
    Sketcher.Constraint("Tangent", 50, 2, 51, 1),
    Sketcher.Constraint("Tangent", 51, 2, 52, 2),
    Sketcher.Constraint("Tangent", 52, 1, 53, 1),
    Sketcher.Constraint("Tangent", 53, 2, 54, 1),
    Sketcher.Constraint("Tangent", 54, 2, 55, 2),
    Sketcher.Constraint("Tangent", 55, 1, 38, 1),
    Sketcher.Constraint("Vertical", 0),
    Sketcher.Constraint("Horizontal", 2),
    Sketcher.Constraint("Vertical", 4),
    Sketcher.Constraint("Vertical", 6),
    Sketcher.Constraint("Vertical", 9),
    Sketcher.Constraint("Vertical", 12),
    Sketcher.Constraint("Vertical", 14),
    Sketcher.Constraint("Horizontal", 16),
    Sketcher.Constraint("Horizontal", 18),
    Sketcher.Constraint("Vertical", 20),
    Sketcher.Constraint("Horizontal", 22),
    Sketcher.Constraint("Horizontal", 24),
    Sketcher.Constraint("Vertical", 26),
    Sketcher.Constraint("Horizontal", 28),
    Sketcher.Constraint("Vertical", 30),
    Sketcher.Constraint("Horizontal", 32),
    Sketcher.Constraint("Horizontal", 34),
    Sketcher.Constraint("Vertical", 36),
    Sketcher.Constraint("Vertical", 38),
    Sketcher.Constraint("Vertical", 41),
    Sketcher.Constraint("Vertical", 43),
    Sketcher.Constraint("Horizontal", 45),
    Sketcher.Constraint("Vertical", 47),
    Sketcher.Constraint("Horizontal", 49),
    Sketcher.Constraint("Vertical", 51),
    Sketcher.Constraint("Vertical", 53),
    Sketcher.Constraint("Equal", 1, 3),
    Sketcher.Constraint("Equal", 3, 5),
    Sketcher.Constraint("Equal", 5, 7),
    Sketcher.Constraint("Equal", 8, 10),
    Sketcher.Constraint("Equal", 7, 11),
    Sketcher.Constraint("Equal", 11, 13),
    Sketcher.Constraint("Equal", 13, 15),
    Sketcher.Constraint("Equal", 15, 17),
    Sketcher.Constraint("Equal", 17, 21),
    Sketcher.Constraint("Equal", 21, 23),
    Sketcher.Constraint("Equal", 23, 25),
    Sketcher.Constraint("Equal", 19, 27),
    Sketcher.Constraint("Equal", 27, 29),
    Sketcher.Constraint("Equal", 25, 31),
    Sketcher.Constraint("Equal", 31, 33),
    Sketcher.Constraint("Equal", 33, 35),
    Sketcher.Constraint("Equal", 29, 37),
    Sketcher.Constraint("Equal", 10, 39),
    Sketcher.Constraint("Equal", 35, 40),
    Sketcher.Constraint("Equal", 40, 42),
    Sketcher.Constraint("Equal", 42, 44),
    Sketcher.Constraint("Equal", 44, 46),
    Sketcher.Constraint("Equal", 46, 48),
    Sketcher.Constraint("Equal", 48, 50),
    Sketcher.Constraint("Equal", 50, 52),
    Sketcher.Constraint("Equal", 52, 54),
    Sketcher.Constraint("Equal", 39, 55),
    Sketcher.Constraint("Symmetric", 25, 3, 31, 3, -2),
    Sketcher.Constraint("Symmetric", 8, 3, 39, 3, -2),
    Sketcher.Constraint("Symmetric", 5, 3, 42, 3, -2),
    Sketcher.Constraint("Symmetric", 1, 3, 46, 3, -2),
    Sketcher.Constraint("Symmetric", 15, 3, 50, 3, -2),
    Sketcher.Constraint("Horizontal", 3, 3, 7, 3),
    Sketcher.Constraint("Horizontal", 11, 3, 15, 3),
    Sketcher.Constraint("Horizontal", 13, 3, 52, 3),
    Sketcher.Constraint("Horizontal", 50, 3, 54, 3),
    Sketcher.Constraint("Vertical", 7, 3, 11, 3),
    Sketcher.Constraint("Vertical", 21, 3, 25, 3),
    Sketcher.Constraint("Vertical", 31, 3, 35, 3),
    Sketcher.Constraint("Vertical", 11, 3, 8, 1),
    Sketcher.Constraint("Equal", 24, 32),
    Sketcher.Constraint("Equal", 34, 4),
    Sketcher.Constraint("Equal", 6, 12),
    Sketcher.Constraint("Equal", 20, 26),
    Sketcher.Constraint("Radius", 8, Q("1 mm")),
    Sketcher.Constraint("Radius", 19, Q("2 mm")),
    Sketcher.Constraint("Radius", 1, Q("1.5 mm")),
    Sketcher.Constraint("DistanceX", 2, 1, 2, 2, Q("3 mm")),
    Sketcher.Constraint("DistanceX", 18, 1, 18, 2, Q("12 mm")),
    Sketcher.Constraint("DistanceY", 0, 1, 0, 2, Q("13 mm")),
    Sketcher.Constraint("DistanceY", 20, 2, 20, 1, Q("1.5 mm")),
    Sketcher.Constraint("DistanceX", -1, 1, 1, 3, Q("38 mm")),
    Sketcher.Constraint("DistanceY", -1, 1, 5, 3, Q("43 mm")),
    Sketcher.Constraint("DistanceY", -1, 1, 21, 3, Q("41 mm")),
    Sketcher.Constraint("DistanceX", 22, 1, 22, 2, Q("0.25 mm")),
])
pocket2 = doc.addObject("PartDesign::Pocket", "Pocket001")
body.addObject(pocket2)
pocket2.Profile = sketch4
pocket2.Type = "ThroughAll"
pocket2.Midplane = True

sketch5 = doc.addObject("Sketcher::SketchObject", "Sketch004")
body.addObject(sketch5)
sketch5.AttachmentSupport = (doc.XY_Plane, [""])
sketch5.MapMode = "FlatFace"
sketch5.addGeometry([
    Part.LineSegment(App.Vector(0.5, -32.5, 0), App.Vector(-0.5, -32.5, 0)),
    Part.ArcOfCircle(Part.Circle(App.Vector(-0.5, -33.5, 0), App.Vector(0, 0, 1), 1), math.radians(90), math.radians(180)),
    Part.LineSegment(App.Vector(-1.5, -33.5, 0), App.Vector(-1.5, -38.2, 0)),
    Part.LineSegment(App.Vector(-1.5, -38.2, 0), App.Vector(-2.9, -38.2, 0)),
    Part.LineSegment(App.Vector(-2.9, -38.2, 0), App.Vector(-2.9, -40.5, 0)),
    Part.LineSegment(App.Vector(-2.9, -40.5, 0), App.Vector(-1.5, -40.5, 0)),
    Part.LineSegment(App.Vector(-1.5, -40.5, 0), App.Vector(-1.5, -44.5, 0)),
    Part.LineSegment(App.Vector(-1.5, -44.5, 0), App.Vector(1.5, -44.5, 0)),
    Part.LineSegment(App.Vector(1.5, -44.5, 0), App.Vector(1.5, -40.5, 0)),
    Part.LineSegment(App.Vector(1.5, -40.5, 0), App.Vector(2.9, -40.5, 0)),
    Part.LineSegment(App.Vector(2.9, -40.5, 0), App.Vector(2.9, -38.2, 0)),
    Part.LineSegment(App.Vector(2.9, -38.2, 0), App.Vector(1.5, -38.2, 0)),
    Part.LineSegment(App.Vector(1.5, -38.2, 0), App.Vector(1.5, -33.5, 0)),
    Part.ArcOfCircle(Part.Circle(App.Vector(0.5, -33.5, 0), App.Vector(0, 0, 1), 1), math.radians(0), math.radians(90)),
], False)
sketch5.addConstraint([
    Sketcher.Constraint("Tangent", 0, 2, 1, 1),
    Sketcher.Constraint("Tangent", 1, 2, 2, 1),
    Sketcher.Constraint("Coincident", 2, 2, 3, 1),
    Sketcher.Constraint("Coincident", 3, 2, 4, 1),
    Sketcher.Constraint("Coincident", 4, 2, 5, 1),
    Sketcher.Constraint("Coincident", 5, 2, 6, 1),
    Sketcher.Constraint("Coincident", 6, 2, 7, 1),
    Sketcher.Constraint("Coincident", 7, 2, 8, 1),
    Sketcher.Constraint("Coincident", 8, 2, 9, 1),
    Sketcher.Constraint("Coincident", 9, 2, 10, 1),
    Sketcher.Constraint("Coincident", 10, 2, 11, 1),
    Sketcher.Constraint("Coincident", 11, 2, 12, 1),
    Sketcher.Constraint("Tangent", 12, 2, 13, 1),
    Sketcher.Constraint("Tangent", 13, 2, 0, 1),
    Sketcher.Constraint("Horizontal", 0),
    Sketcher.Constraint("Vertical", 2),
    Sketcher.Constraint("Horizontal", 3),
    Sketcher.Constraint("Vertical", 4),
    Sketcher.Constraint("Horizontal", 5),
    Sketcher.Constraint("Vertical", 6),
    Sketcher.Constraint("Horizontal", 7),
    Sketcher.Constraint("Vertical", 8),
    Sketcher.Constraint("Horizontal", 9),
    Sketcher.Constraint("Vertical", 10),
    Sketcher.Constraint("Horizontal", 11),
    Sketcher.Constraint("Vertical", 12),
    Sketcher.Constraint("Equal", 1, 13),
    Sketcher.Constraint("Symmetric", 5, 2, 8, 2, -2),
    Sketcher.Constraint("Symmetric", 3, 2, 10, 2, -2),
    Sketcher.Constraint("Vertical", 2, 2, 5, 2),
    Sketcher.Constraint("Vertical", 8, 2, 11, 2),
    Sketcher.Constraint("Radius", 1, Q("1 mm")),
    Sketcher.Constraint("DistanceX", 0, 2, 0, 1, Q("1 mm")),
    Sketcher.Constraint("DistanceY", 6, 2, 6, 1, Q("4 mm")),
    Sketcher.Constraint("DistanceY", 4, 2, 1, 2, Q("7 mm")),
    Sketcher.Constraint("DistanceX", 3, 2, 3, 1, Q("1.35 mm")),
    Sketcher.Constraint("DistanceY", 2, 2, 2, 1, Q("4.73 mm")),
    Sketcher.Constraint("DistanceY", 1, 3, -1, 1, Q("33.5 mm")),
])
pocket3 = doc.addObject("PartDesign::Pocket", "Pocket002")
body.addObject(pocket3)
pocket3.Profile = sketch5
pocket3.Type = "ThroughAll"
pocket3.Midplane = True
doc.recompute()

fillet = doc.addObject("PartDesign::Fillet", "Fillet")
body.addObject(fillet)
fillet.Base = (pocket3, edges_at(pocket3, [(53, 47.5, 0), (-53, 47.5, 0)]))
fillet.Radius = 5

doc.recompute()
